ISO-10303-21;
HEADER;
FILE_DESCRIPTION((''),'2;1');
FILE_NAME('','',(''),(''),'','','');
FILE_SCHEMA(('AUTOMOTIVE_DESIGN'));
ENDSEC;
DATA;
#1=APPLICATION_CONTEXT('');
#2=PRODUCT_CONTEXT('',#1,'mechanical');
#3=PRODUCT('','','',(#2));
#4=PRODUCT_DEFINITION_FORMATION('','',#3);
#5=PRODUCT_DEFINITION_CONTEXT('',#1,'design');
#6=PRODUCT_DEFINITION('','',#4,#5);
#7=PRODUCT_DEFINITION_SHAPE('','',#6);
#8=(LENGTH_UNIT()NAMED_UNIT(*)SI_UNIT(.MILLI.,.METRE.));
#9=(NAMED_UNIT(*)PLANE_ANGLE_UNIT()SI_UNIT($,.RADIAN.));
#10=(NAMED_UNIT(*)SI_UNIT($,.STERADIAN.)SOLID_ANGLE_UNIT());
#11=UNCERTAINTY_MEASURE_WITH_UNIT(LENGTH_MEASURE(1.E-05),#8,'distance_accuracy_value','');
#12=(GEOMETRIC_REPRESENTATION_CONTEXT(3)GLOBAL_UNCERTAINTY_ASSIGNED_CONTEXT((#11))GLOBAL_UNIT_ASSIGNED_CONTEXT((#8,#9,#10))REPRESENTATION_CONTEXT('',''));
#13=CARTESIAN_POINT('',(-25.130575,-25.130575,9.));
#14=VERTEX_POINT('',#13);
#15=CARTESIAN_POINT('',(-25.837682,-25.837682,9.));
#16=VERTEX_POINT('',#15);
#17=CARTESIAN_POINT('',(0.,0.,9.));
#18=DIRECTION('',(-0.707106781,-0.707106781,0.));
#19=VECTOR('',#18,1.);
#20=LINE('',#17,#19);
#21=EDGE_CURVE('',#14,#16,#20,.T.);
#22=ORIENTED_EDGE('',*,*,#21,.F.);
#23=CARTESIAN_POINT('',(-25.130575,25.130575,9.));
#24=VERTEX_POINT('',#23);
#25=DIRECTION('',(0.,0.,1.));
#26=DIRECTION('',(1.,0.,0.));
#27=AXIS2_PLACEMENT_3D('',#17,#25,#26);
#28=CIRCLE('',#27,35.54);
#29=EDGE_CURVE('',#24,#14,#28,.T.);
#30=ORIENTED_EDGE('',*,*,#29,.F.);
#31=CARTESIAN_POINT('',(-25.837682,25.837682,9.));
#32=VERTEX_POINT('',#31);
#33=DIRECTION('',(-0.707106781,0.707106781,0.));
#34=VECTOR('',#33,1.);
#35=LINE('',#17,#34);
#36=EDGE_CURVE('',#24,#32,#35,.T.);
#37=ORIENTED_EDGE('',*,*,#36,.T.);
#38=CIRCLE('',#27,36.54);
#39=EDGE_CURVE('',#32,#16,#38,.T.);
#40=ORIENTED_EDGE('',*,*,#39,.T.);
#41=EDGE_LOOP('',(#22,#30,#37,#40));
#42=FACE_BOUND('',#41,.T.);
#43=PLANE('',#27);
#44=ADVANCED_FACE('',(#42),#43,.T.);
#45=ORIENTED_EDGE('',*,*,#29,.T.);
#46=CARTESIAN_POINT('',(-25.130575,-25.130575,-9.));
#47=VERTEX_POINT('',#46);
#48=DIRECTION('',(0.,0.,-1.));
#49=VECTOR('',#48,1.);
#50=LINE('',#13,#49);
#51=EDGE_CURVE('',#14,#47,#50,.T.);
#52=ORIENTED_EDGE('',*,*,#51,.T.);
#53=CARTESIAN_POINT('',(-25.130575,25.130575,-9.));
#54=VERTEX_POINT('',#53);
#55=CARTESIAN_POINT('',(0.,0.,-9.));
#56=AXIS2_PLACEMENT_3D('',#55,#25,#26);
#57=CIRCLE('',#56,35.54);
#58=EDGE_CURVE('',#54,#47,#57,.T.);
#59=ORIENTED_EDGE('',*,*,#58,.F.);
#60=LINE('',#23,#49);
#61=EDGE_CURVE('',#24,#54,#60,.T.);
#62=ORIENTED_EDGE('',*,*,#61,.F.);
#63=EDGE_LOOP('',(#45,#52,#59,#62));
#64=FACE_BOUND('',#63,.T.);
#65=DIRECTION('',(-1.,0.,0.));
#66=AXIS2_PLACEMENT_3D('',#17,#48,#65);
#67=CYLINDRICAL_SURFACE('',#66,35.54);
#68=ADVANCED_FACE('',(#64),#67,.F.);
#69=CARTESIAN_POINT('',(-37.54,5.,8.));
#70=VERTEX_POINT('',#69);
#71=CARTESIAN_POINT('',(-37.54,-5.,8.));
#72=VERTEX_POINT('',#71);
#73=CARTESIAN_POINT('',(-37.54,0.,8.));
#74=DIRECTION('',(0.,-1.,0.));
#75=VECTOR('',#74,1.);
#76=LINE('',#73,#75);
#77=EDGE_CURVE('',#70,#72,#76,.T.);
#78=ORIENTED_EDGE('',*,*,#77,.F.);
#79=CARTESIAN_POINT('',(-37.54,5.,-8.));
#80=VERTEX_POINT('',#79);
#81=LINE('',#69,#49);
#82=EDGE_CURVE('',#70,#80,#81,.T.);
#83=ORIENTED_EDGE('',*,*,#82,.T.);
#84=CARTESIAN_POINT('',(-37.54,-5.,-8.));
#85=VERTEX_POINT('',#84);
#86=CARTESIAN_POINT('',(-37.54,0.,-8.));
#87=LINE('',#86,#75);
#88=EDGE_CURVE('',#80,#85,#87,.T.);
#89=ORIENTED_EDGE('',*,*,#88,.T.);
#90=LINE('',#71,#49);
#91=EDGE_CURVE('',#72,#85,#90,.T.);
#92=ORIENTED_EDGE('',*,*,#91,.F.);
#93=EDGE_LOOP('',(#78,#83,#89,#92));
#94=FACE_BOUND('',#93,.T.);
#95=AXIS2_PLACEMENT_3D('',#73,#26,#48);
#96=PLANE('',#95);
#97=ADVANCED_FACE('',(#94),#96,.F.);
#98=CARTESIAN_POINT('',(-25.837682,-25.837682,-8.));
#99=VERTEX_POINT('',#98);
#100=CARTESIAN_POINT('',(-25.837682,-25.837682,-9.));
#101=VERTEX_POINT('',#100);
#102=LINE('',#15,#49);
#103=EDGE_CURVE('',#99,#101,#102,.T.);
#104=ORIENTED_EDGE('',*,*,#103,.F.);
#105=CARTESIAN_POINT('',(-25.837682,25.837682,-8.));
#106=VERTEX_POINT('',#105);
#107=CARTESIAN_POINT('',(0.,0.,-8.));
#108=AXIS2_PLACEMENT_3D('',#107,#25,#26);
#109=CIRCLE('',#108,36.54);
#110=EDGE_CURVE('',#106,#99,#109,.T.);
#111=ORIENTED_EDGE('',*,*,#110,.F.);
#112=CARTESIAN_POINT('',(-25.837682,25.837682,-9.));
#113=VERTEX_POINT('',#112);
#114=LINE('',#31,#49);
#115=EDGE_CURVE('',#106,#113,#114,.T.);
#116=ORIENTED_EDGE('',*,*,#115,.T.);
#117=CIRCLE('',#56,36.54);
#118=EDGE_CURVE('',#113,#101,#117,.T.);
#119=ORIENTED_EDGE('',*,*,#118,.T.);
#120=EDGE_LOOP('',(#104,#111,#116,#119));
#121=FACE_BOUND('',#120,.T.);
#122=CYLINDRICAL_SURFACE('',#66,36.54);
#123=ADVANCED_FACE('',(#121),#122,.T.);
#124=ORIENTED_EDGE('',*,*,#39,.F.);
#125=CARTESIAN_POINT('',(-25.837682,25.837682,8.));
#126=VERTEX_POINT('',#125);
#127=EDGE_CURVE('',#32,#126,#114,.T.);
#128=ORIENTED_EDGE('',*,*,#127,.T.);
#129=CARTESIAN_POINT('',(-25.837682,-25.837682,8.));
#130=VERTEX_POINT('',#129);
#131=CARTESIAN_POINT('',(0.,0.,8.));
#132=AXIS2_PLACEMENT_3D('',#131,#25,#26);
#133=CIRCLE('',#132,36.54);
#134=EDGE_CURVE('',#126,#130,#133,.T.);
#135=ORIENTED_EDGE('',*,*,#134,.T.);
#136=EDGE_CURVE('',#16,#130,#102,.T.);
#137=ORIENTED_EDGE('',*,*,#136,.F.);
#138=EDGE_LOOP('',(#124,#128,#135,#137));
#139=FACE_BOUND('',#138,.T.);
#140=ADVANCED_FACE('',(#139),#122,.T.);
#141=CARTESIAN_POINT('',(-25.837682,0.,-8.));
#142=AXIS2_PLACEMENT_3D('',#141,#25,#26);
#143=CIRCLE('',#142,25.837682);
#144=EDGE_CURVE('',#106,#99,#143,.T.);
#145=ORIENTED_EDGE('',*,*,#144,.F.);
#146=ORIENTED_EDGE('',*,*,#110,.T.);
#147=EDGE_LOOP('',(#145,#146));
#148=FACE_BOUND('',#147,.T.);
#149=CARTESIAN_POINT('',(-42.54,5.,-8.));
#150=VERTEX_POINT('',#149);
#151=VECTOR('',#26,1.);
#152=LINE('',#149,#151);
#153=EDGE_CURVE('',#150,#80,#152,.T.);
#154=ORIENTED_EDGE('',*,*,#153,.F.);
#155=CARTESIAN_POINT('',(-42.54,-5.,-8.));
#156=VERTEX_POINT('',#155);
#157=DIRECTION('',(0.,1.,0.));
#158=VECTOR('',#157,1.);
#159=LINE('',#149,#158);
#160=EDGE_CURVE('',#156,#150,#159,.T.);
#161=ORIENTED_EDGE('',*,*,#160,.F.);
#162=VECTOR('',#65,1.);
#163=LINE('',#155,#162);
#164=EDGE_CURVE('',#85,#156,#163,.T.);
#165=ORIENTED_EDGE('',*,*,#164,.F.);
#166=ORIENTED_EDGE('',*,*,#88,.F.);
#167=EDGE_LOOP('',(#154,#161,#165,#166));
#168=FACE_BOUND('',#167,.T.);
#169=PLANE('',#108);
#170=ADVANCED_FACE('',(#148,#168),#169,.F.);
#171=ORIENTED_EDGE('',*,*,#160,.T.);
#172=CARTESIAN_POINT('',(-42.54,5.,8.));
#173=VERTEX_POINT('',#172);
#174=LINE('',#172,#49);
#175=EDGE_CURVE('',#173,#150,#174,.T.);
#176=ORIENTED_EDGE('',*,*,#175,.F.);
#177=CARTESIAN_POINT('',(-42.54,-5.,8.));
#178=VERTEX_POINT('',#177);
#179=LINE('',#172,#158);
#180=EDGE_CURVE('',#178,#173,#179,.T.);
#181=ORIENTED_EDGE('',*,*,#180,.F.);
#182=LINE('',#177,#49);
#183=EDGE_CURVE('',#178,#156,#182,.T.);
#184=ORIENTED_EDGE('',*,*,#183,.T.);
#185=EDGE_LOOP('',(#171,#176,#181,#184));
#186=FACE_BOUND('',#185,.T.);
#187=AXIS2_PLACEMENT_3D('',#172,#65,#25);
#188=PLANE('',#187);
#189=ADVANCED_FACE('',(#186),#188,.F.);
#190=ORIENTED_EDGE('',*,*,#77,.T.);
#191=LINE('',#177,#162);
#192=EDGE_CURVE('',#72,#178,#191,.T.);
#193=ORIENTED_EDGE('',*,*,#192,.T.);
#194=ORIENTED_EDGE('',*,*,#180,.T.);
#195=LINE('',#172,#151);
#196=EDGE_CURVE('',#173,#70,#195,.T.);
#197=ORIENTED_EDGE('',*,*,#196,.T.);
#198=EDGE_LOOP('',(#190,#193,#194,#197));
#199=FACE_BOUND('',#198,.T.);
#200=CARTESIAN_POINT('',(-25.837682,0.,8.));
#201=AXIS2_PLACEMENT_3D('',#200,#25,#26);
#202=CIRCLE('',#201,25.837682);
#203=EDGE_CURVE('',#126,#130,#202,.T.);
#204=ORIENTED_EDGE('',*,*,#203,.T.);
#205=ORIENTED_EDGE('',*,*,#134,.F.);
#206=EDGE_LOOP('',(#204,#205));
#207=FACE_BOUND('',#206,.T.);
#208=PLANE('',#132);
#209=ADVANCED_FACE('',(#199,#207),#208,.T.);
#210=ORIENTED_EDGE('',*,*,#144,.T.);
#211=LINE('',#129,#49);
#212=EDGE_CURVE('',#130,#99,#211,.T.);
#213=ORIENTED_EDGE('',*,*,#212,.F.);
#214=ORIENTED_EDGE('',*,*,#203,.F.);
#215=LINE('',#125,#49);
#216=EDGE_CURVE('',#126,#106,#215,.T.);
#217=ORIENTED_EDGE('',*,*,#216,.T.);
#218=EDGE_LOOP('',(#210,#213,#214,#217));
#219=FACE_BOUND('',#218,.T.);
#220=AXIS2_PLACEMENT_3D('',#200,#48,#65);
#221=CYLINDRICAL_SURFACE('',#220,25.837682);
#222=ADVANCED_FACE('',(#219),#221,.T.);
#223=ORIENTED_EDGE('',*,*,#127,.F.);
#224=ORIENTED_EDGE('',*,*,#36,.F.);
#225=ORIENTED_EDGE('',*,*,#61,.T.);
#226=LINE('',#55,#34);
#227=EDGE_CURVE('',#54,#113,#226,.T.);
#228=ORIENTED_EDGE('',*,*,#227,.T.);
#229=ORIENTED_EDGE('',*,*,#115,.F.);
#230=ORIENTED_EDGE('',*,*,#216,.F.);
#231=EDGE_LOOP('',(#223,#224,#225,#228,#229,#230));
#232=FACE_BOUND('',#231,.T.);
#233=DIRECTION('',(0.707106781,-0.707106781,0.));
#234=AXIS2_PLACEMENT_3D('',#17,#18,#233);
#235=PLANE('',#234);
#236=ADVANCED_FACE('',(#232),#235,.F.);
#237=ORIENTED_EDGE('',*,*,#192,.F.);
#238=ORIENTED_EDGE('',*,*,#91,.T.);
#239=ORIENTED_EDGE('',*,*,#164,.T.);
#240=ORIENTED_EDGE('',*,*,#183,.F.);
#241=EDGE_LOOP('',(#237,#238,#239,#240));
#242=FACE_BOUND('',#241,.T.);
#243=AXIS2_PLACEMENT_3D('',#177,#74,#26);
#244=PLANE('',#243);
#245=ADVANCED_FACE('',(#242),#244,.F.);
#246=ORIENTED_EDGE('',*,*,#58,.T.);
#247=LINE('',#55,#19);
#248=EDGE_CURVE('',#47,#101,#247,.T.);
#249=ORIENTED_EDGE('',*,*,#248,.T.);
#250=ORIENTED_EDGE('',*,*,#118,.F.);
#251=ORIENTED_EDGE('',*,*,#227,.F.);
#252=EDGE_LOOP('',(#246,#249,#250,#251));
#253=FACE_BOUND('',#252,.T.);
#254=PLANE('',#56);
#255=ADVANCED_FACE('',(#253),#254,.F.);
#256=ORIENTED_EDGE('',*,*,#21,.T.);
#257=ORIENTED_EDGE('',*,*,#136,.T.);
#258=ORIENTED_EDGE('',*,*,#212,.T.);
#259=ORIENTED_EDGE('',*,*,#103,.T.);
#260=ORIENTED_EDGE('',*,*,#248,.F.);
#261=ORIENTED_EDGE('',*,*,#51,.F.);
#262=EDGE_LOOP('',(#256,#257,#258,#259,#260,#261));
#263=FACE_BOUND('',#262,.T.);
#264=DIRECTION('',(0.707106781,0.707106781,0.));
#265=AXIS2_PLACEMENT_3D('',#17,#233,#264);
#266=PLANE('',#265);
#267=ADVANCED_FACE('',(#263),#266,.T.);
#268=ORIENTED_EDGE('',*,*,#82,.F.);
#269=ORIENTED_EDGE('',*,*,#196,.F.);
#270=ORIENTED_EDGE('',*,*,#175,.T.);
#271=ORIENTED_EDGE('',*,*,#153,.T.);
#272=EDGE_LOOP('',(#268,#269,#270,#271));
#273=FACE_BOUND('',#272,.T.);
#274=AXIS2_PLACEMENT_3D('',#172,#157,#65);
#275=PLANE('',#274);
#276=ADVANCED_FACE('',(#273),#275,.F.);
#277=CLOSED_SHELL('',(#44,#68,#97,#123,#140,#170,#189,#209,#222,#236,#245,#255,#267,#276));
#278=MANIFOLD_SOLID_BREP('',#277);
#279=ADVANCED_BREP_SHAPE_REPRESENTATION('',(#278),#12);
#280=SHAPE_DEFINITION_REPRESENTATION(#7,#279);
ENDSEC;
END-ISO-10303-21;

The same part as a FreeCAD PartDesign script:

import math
import FreeCAD as App
import Part
import Sketcher

doc = App.newDocument("Part")
body = doc.addObject("PartDesign::Body", "Body")

# Sketch on XY plane
sketch1 = doc.addObject("Sketcher::SketchObject", "Sketch")
body.addObject(sketch1)
sketch1.AttachmentSupport = (doc.XY_Plane, [""])
sketch1.MapMode = "FlatFace"
sketch1.addGeometry([
    Part.ArcOfCircle(Part.Circle(App.Vector(0, 0, 0), App.Vector(0, 0, 1), 35.5), math.radians(135), math.radians(225)),
    Part.LineSegment(App.Vector(-25.1, 25.1, 0), App.Vector(-25.8, 25.8, 0)),
    Part.ArcOfCircle(Part.Circle(App.Vector(0, 0, 0), App.Vector(0, 0, 1), 36.5), math.radians(135), math.radians(225)),
    Part.LineSegment(App.Vector(-25.8, -25.8, 0), App.Vector(-25.1, -25.1, 0)),
], False)
sketch1.addConstraint([
    Sketcher.Constraint("Coincident", 0, 1, 1, 1),
    Sketcher.Constraint("Coincident", 1, 2, 2, 1),
    Sketcher.Constraint("Coincident", 2, 2, 3, 1),
    Sketcher.Constraint("Coincident", 3, 2, 0, 2),
    Sketcher.Constraint("Coincident", 0, 3, -1, 1),
    Sketcher.Constraint("Coincident", 2, 3, -1, 1),
    Sketcher.Constraint("Perpendicular", 1, 3),
    Sketcher.Constraint("Vertical", 1, 2, 2, 2),
    Sketcher.Constraint("Vertical", 0, 1, 3, 2),
    Sketcher.Constraint("Radius", 0, 35.54),
    Sketcher.Constraint("Radius", 2, 36.54),
    Sketcher.Constraint("DistanceX", 1, 2, -1, 1, 25.837682),
])
pad1 = doc.addObject("PartDesign::Pad", "Pad")
body.addObject(pad1)
pad1.Profile = sketch1
pad1.Length = 18
pad1.Midplane = True

# Sketch on XY plane
sketch2 = doc.addObject("Sketcher::SketchObject", "Sketch001")
body.addObject(sketch2)
sketch2.AttachmentSupport = (doc.XY_Plane, [""])
sketch2.MapMode = "FlatFace"
sketch2.addGeometry([
    Part.ArcOfCircle(Part.Circle(App.Vector(-4, 0, 0), App.Vector(0, 0, 1), 34), math.radians(130), math.radians(171)),
    Part.LineSegment(App.Vector(-38, 5, 0), App.Vector(-38, -5, 0)),
    Part.ArcOfCircle(Part.Circle(App.Vector(-4, 0, 0), App.Vector(0, 0, 1), 34), math.radians(-171), math.radians(-130)),
    Part.ArcOfCircle(Part.Circle(App.Vector(0, 0, 0), App.Vector(0, 0, 1), 37), math.radians(135), math.radians(225)),
], False)
sketch2.addConstraint([
    Sketcher.Constraint("Coincident", 0, 2, 1, 1),
    Sketcher.Constraint("Coincident", 1, 2, 2, 1),
    Sketcher.Constraint("Coincident", 2, 2, 3, 2),
    Sketcher.Constraint("Coincident", 3, 1, 0, 1),
    Sketcher.Constraint("Vertical", 1),
    Sketcher.Constraint("Coincident", 3, 3, -1, 1),
    Sketcher.Constraint("Coincident", 2, 3, 0, 3),
    Sketcher.Constraint("Equal", 0, 2),
    Sketcher.Constraint("PointOnObject", 0, 3, -1),
    Sketcher.Constraint("DistanceY", 1, 2, 1, 1, 10.0),
    Sketcher.Constraint("Radius", 3, 36.54),
    Sketcher.Constraint("DistanceX", 0, 2, -1, 1, 37.54),
    Sketcher.Constraint("Radius", 0, 33.67986),
])
pad2 = doc.addObject("PartDesign::Pad", "Pad001")
body.addObject(pad2)
pad2.Profile = sketch2
pad2.Length = 16
pad2.Midplane = True
body2 = doc.addObject("PartDesign::Body", "Body001")

# Sketch on XY plane
sketch3 = doc.addObject("Sketcher::SketchObject", "Sketch002")
body2.addObject(sketch3)
sketch3.AttachmentSupport = (doc.getObject("XY_Plane001"), [""])
sketch3.MapMode = "FlatFace"
sketch3.addGeometry([
    Part.LineSegment(App.Vector(-43, -5, 0), App.Vector(-43, 5, 0)),
    Part.ArcOfCircle(Part.Circle(App.Vector(-15, 0, 0), App.Vector(0, 0, 1), 28), math.radians(113), math.radians(170)),
    Part.ArcOfCircle(Part.Circle(App.Vector(-26, 0, 0), App.Vector(0, 0, 1), 26), math.radians(90), math.radians(270)),
    Part.ArcOfCircle(Part.Circle(App.Vector(-15, 0, 0), App.Vector(0, 0, 1), 28), math.radians(-170), math.radians(-113)),
], False)
sketch3.addConstraint([
    Sketcher.Constraint("Coincident", 0, 2, 1, 2),
    Sketcher.Constraint("Coincident", 1, 1, 2, 1),
    Sketcher.Constraint("Coincident", 2, 2, 3, 2),
    Sketcher.Constraint("Coincident", 3, 1, 0, 1),
    Sketcher.Constraint("Vertical", 0),
    Sketcher.Constraint("Coincident", 3, 3, 1, 3),
    Sketcher.Constraint("Equal", 1, 3),
    Sketcher.Constraint("Symmetric", 1, 1, 2, 2, -1),
    Sketcher.Constraint("Vertical", 2, 3, 1, 1),
    Sketcher.Constraint("DistanceY", 0, 1, 0, 2, 10.0),
    Sketcher.Constraint("DistanceX", 0, 2, -1, 1, 42.54),
    Sketcher.Constraint("Radius", 2, 25.837682),
    Sketcher.Constraint("Radius", 1, 28.037026),
])
pad3 = doc.addObject("PartDesign::Pad", "Pad002")
body2.addObject(pad3)
pad3.Profile = sketch3
pad3.Length = 16
pad3.Midplane = True
body.AllowCompound = True
doc.recompute()

boolean = doc.addObject("PartDesign::Boolean", "Boolean")
body.addObject(boolean)
boolean.Type = "Fuse"
boolean.addObjects([body2])

# Sketch on XY plane
sketch4 = doc.addObject("Sketcher::SketchObject", "Sketch003")
body.addObject(sketch4)
sketch4.AttachmentSupport = (doc.XY_Plane, [""])
sketch4.MapMode = "FlatFace"
sketch4.addGeometry([
    Part.LineSegment(App.Vector(-43, 5, 0), App.Vector(-38, 5, 0)),  # 0
    Part.ArcOfCircle(Part.Circle(App.Vector(-4, 0, 0), App.Vector(0, 0, 1), 34), math.radians(130), math.radians(171)),  # 1
    Part.ArcOfCircle(Part.Circle(App.Vector(-15, 0, 0), App.Vector(0, 0, 1), 28), math.radians(113), math.radians(170)),  # 2
    Part.LineSegment(App.Vector(-38, -5, 0), App.Vector(-43, -5, 0)),  # 3
    Part.ArcOfCircle(Part.Circle(App.Vector(-15, 0, 0), App.Vector(0, 0, 1), 28), math.radians(-170), math.radians(-113)),  # 4
    Part.ArcOfCircle(Part.Circle(App.Vector(-4, 0, 0), App.Vector(0, 0, 1), 34), math.radians(-171), math.radians(-130)),  # 5
], False)
sketch4.addConstraint([
    Sketcher.Constraint("Coincident", 0, 2, 1, 2),
    Sketcher.Constraint("Coincident", 1, 1, 2, 1),
    Sketcher.Constraint("Coincident", 2, 2, 0, 1),
    Sketcher.Constraint("Coincident", 3, 2, 4, 1),
    Sketcher.Constraint("Coincident", 4, 2, 5, 2),
    Sketcher.Constraint("Coincident", 5, 1, 3, 1),
    Sketcher.Constraint("Horizontal", 0),
    Sketcher.Constraint("Horizontal", 3),
    Sketcher.Constraint("Coincident", 4, 3, 2, 3),
    Sketcher.Constraint("Coincident", 5, 3, 1, 3),
    Sketcher.Constraint("Equal", 2, 4),
    Sketcher.Constraint("Equal", 1, 5),
    Sketcher.Constraint("Symmetric", 2, 2, 3, 2, -1),
    Sketcher.Constraint("PointOnObject", 1, 3, -1),
    Sketcher.Constraint("DistanceX", 0, 1, 0, 2, 5.0),
    Sketcher.Constraint("DistanceY", -1, 1, 0, 2, 5.0),
    Sketcher.Constraint("DistanceX", 0, 2, -1, 1, 37.54),
    Sketcher.Constraint("Radius", 1, 33.67986),
    Sketcher.Constraint("Radius", 2, 28.037026),
])
pad4 = doc.addObject("PartDesign::Pad", "Pad003")
body.addObject(pad4)
pad4.Profile = sketch4
pad4.Length = 16
pad4.Midplane = True

doc.recompute()
